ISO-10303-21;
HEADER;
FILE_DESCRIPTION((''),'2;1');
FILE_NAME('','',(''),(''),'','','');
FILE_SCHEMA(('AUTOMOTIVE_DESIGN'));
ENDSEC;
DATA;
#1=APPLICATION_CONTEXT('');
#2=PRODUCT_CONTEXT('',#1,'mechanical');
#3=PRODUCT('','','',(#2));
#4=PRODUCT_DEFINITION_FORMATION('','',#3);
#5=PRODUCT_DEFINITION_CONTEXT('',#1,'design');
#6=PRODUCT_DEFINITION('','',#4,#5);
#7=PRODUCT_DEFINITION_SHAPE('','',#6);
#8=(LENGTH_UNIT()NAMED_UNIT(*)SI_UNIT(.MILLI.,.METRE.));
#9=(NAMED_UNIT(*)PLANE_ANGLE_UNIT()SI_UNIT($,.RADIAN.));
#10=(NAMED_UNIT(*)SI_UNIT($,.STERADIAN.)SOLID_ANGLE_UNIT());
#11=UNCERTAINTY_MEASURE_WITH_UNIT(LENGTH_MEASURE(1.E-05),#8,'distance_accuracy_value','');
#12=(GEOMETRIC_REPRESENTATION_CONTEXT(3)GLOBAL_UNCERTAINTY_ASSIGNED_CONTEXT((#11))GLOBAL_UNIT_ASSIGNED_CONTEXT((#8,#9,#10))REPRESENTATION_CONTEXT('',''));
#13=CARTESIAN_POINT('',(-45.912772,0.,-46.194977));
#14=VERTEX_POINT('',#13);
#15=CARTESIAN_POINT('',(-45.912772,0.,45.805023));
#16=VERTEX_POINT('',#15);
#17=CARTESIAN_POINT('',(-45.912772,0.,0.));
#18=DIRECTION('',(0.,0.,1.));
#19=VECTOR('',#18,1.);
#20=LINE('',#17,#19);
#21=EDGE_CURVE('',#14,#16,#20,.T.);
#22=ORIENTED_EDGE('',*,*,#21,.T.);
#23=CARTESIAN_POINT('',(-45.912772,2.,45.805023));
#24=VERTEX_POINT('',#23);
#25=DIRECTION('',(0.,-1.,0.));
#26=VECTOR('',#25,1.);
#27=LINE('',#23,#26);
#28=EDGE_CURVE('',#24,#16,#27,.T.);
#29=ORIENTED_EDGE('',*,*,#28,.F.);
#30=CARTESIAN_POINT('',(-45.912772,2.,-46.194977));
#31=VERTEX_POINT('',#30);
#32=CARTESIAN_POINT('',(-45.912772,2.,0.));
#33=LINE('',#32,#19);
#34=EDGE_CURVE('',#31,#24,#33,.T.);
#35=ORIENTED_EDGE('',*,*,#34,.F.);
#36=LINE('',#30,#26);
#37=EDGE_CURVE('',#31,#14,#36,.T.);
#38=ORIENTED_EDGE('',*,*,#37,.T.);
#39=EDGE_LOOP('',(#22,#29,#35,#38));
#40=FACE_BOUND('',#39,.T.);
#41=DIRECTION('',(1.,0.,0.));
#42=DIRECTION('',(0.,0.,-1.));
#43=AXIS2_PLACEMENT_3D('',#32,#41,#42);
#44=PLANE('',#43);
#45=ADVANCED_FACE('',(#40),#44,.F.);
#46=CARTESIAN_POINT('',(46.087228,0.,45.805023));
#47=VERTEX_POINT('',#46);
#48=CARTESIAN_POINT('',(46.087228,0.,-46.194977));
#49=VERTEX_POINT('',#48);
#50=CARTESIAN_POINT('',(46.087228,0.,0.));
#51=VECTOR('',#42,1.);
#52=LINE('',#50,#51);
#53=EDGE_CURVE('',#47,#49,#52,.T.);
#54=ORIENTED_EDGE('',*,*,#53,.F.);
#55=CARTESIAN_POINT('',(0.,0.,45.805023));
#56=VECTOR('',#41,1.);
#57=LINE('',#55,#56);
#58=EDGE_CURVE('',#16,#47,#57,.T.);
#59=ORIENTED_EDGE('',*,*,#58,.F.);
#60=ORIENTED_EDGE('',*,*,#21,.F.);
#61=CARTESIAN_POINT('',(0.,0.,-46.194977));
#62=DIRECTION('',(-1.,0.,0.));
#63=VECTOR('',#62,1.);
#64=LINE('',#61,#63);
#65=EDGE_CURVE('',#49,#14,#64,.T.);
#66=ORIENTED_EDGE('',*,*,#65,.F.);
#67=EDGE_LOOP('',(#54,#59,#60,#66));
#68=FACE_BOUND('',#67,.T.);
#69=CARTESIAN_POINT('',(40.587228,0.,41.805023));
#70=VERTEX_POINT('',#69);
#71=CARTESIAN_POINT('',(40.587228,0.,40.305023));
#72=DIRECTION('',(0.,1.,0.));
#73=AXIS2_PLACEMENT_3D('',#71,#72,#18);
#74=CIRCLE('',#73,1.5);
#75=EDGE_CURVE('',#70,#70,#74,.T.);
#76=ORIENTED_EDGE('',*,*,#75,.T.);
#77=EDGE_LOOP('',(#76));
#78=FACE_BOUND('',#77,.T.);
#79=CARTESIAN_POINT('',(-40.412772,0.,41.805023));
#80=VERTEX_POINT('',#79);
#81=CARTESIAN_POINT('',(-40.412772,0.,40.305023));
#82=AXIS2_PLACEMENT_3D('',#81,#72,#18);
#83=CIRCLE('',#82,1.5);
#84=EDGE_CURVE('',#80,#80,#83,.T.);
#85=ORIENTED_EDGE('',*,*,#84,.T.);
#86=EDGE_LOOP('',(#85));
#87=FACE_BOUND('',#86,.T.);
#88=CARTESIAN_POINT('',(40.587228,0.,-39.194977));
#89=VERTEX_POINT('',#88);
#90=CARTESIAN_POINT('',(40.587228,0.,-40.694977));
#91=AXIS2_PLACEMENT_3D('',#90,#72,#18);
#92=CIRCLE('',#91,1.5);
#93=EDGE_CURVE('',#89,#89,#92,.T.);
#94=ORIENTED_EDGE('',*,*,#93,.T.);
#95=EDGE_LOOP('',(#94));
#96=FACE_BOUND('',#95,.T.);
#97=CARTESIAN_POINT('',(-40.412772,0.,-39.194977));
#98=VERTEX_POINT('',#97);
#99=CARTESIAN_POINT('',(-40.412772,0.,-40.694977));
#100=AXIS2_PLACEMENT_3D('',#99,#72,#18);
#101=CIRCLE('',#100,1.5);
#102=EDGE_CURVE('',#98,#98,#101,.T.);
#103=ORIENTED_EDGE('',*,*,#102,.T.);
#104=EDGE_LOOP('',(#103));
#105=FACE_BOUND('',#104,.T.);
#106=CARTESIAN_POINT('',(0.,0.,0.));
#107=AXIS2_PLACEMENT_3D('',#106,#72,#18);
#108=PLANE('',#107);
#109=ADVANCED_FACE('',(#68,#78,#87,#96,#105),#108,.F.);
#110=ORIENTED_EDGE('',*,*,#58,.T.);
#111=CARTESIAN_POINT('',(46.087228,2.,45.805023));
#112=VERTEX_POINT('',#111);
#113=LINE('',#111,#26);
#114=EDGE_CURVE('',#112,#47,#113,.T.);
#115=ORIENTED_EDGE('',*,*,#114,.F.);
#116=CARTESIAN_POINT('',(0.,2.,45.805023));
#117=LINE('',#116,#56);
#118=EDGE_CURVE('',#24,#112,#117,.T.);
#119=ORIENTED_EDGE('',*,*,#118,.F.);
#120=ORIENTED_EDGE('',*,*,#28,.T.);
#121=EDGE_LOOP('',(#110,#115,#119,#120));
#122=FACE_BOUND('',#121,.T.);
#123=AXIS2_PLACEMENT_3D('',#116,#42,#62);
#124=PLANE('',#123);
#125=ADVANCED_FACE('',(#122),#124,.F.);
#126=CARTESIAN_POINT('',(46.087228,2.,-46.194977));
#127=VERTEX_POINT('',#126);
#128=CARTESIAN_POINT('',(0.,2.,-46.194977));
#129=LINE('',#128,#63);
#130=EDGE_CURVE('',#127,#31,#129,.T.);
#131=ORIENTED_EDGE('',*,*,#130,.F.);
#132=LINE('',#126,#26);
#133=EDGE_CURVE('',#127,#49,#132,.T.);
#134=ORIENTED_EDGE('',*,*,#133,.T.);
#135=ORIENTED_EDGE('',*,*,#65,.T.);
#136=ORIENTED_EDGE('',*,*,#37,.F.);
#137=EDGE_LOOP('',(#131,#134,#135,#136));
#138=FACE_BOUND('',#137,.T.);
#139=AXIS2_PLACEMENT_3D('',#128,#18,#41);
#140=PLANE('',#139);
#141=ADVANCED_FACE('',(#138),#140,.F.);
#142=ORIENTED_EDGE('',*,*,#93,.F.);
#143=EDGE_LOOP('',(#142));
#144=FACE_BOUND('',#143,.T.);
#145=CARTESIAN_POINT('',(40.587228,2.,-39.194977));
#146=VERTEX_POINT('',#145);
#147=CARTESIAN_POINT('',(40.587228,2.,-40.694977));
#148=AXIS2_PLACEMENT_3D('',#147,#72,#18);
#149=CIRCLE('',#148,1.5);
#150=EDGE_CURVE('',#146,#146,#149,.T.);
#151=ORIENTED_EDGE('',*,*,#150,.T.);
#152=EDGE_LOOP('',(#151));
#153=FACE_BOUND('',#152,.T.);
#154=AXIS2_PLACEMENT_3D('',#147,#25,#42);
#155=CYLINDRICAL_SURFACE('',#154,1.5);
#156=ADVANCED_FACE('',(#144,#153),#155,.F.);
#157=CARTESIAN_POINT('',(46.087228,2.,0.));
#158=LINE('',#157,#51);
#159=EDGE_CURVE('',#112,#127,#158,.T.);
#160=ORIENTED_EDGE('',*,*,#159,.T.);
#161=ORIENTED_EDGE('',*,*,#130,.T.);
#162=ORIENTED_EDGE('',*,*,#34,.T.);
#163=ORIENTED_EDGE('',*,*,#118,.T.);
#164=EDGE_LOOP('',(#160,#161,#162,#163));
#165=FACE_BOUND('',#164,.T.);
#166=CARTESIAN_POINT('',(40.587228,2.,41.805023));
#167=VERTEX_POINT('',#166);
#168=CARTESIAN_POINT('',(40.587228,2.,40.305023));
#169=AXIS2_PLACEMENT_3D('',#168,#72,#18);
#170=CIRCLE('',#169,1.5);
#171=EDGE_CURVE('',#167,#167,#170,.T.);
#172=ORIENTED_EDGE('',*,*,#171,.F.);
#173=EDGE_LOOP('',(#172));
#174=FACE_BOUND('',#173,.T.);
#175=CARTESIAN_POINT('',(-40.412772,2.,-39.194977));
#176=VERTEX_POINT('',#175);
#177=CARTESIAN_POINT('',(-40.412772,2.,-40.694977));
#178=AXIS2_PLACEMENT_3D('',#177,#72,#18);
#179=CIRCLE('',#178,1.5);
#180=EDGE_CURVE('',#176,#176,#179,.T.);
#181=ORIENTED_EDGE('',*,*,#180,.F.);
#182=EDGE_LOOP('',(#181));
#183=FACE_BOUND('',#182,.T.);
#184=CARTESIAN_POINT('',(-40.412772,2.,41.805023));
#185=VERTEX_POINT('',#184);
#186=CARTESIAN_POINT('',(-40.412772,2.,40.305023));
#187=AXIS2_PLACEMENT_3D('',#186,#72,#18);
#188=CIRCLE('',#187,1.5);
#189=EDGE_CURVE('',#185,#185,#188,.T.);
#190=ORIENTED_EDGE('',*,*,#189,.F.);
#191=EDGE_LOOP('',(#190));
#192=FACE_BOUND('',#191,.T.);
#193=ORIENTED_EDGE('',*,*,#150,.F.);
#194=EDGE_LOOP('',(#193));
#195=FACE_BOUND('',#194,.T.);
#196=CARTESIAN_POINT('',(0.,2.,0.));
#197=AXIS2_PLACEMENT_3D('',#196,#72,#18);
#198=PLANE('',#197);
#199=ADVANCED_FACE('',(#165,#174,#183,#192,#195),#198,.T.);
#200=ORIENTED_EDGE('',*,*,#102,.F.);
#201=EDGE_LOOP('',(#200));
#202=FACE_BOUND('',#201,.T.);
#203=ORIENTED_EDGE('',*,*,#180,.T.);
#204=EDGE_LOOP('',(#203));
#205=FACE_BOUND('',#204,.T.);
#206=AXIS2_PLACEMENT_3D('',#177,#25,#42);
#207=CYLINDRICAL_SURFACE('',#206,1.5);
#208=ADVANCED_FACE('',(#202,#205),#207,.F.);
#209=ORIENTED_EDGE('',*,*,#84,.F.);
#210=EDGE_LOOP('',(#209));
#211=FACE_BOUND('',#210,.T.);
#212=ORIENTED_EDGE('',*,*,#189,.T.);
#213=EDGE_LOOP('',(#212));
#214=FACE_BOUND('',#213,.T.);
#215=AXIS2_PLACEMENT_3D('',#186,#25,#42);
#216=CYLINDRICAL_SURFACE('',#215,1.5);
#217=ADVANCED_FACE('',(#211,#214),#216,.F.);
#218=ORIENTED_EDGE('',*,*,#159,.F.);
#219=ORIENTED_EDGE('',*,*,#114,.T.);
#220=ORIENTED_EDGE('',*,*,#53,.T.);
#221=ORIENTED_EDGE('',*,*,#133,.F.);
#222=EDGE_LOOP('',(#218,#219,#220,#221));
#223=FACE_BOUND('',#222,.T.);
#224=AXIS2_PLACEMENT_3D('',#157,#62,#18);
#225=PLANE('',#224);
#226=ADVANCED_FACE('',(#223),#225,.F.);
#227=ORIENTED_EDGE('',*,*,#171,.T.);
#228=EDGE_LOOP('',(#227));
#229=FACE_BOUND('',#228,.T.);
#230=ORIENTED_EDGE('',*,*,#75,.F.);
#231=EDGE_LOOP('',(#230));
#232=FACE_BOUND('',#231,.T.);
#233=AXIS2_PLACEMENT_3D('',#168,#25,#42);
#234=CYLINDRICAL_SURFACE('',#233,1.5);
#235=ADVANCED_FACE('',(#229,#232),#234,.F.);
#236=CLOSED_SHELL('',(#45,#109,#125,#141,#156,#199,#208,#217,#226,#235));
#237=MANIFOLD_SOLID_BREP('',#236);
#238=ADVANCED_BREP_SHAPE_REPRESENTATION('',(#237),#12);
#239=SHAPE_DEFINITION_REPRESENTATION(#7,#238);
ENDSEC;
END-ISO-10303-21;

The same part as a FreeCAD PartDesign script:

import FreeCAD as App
import Part
import Sketcher


def add_polygon(sketch, points):
    """Adds a closed chain of lines whose ends are joined by coincident constraints."""
    first, n = sketch.GeometryCount, len(points)
    for a, b in zip(points, points[1:] + points[:1]):
        sketch.addGeometry(Part.LineSegment(App.Vector(*a, 0), App.Vector(*b, 0)), False)
    for i in range(n):
        sketch.addConstraint(Sketcher.Constraint("Coincident", first + i, 2, first + (i + 1) % n, 1))

doc = App.newDocument("Part")
body = doc.addObject("PartDesign::Body", "Body")

# Sketch on XZ plane
sketch1 = body.newObject("Sketcher::SketchObject", "Sketch")
sketch1.AttachmentSupport = (doc.getObject("XZ_Plane"), [""])
sketch1.MapMode = "FlatFace"
add_polygon(sketch1, [(46.1, -46.2), (-45.9, -46.2), (-45.9, 45.8), (46.1, 45.8)])  # lines 0-3
sketch1.addGeometry(Part.Circle(App.Vector(-40.4, 40.3, 0), App.Vector(0, 0, 1), 1.5), False)  # 4
sketch1.addGeometry(Part.Circle(App.Vector(40.6, 40.3, 0), App.Vector(0, 0, 1), 1.5), False)  # 5
sketch1.addGeometry(Part.Circle(App.Vector(-40.4, -40.7, 0), App.Vector(0, 0, 1), 1.5), False)  # 6
sketch1.addGeometry(Part.Circle(App.Vector(40.6, -40.7, 0), App.Vector(0, 0, 1), 1.5), False)  # 7
sketch1.addConstraint(Sketcher.Constraint("Horizontal", 0))
sketch1.addConstraint(Sketcher.Constraint("Vertical", 1))
sketch1.addConstraint(Sketcher.Constraint("Horizontal", 2))
sketch1.addConstraint(Sketcher.Constraint("Vertical", 3))
sketch1.addConstraint(Sketcher.Constraint("Equal", 4, 5))
sketch1.addConstraint(Sketcher.Constraint("Equal", 5, 6))
sketch1.addConstraint(Sketcher.Constraint("Equal", 6, 7))
sketch1.addConstraint(Sketcher.Constraint("Horizontal", 4, 3, 5, 3))
sketch1.addConstraint(Sketcher.Constraint("Horizontal", 6, 3, 7, 3))
sketch1.addConstraint(Sketcher.Constraint("Vertical", 4, 3, 6, 3))
sketch1.addConstraint(Sketcher.Constraint("Vertical", 5, 3, 7, 3))
sketch1.addConstraint(Sketcher.Constraint("Equal", 2, 1))
sketch1.addConstraint(Sketcher.Constraint("Diameter", 4, 3.0))
sketch1.addConstraint(Sketcher.Constraint("DistanceX", 0, 2, 0, 1, 92.0))
sketch1.addConstraint(Sketcher.Constraint("DistanceX", 4, 3, 5, 3, 81.0))
sketch1.addConstraint(Sketcher.Constraint("DistanceY", 6, 3, 4, 3, 81.0))
sketch1.addConstraint(Sketcher.Constraint("DistanceX", 0, 2, 6, 3, 5.5))
sketch1.addConstraint(Sketcher.Constraint("DistanceY", 0, 2, 6, 3, 5.5))
sketch1.addConstraint(Sketcher.Constraint("DistanceX", 4, 3, -1, 1, 40.412772))
sketch1.addConstraint(Sketcher.Constraint("DistanceY", -1, 1, 4, 3, 40.305023))
pad1 = body.newObject("PartDesign::Pad", "Pad")
pad1.Profile = sketch1
pad1.Length = 2
pad1.Reversed = True

doc.recompute()
